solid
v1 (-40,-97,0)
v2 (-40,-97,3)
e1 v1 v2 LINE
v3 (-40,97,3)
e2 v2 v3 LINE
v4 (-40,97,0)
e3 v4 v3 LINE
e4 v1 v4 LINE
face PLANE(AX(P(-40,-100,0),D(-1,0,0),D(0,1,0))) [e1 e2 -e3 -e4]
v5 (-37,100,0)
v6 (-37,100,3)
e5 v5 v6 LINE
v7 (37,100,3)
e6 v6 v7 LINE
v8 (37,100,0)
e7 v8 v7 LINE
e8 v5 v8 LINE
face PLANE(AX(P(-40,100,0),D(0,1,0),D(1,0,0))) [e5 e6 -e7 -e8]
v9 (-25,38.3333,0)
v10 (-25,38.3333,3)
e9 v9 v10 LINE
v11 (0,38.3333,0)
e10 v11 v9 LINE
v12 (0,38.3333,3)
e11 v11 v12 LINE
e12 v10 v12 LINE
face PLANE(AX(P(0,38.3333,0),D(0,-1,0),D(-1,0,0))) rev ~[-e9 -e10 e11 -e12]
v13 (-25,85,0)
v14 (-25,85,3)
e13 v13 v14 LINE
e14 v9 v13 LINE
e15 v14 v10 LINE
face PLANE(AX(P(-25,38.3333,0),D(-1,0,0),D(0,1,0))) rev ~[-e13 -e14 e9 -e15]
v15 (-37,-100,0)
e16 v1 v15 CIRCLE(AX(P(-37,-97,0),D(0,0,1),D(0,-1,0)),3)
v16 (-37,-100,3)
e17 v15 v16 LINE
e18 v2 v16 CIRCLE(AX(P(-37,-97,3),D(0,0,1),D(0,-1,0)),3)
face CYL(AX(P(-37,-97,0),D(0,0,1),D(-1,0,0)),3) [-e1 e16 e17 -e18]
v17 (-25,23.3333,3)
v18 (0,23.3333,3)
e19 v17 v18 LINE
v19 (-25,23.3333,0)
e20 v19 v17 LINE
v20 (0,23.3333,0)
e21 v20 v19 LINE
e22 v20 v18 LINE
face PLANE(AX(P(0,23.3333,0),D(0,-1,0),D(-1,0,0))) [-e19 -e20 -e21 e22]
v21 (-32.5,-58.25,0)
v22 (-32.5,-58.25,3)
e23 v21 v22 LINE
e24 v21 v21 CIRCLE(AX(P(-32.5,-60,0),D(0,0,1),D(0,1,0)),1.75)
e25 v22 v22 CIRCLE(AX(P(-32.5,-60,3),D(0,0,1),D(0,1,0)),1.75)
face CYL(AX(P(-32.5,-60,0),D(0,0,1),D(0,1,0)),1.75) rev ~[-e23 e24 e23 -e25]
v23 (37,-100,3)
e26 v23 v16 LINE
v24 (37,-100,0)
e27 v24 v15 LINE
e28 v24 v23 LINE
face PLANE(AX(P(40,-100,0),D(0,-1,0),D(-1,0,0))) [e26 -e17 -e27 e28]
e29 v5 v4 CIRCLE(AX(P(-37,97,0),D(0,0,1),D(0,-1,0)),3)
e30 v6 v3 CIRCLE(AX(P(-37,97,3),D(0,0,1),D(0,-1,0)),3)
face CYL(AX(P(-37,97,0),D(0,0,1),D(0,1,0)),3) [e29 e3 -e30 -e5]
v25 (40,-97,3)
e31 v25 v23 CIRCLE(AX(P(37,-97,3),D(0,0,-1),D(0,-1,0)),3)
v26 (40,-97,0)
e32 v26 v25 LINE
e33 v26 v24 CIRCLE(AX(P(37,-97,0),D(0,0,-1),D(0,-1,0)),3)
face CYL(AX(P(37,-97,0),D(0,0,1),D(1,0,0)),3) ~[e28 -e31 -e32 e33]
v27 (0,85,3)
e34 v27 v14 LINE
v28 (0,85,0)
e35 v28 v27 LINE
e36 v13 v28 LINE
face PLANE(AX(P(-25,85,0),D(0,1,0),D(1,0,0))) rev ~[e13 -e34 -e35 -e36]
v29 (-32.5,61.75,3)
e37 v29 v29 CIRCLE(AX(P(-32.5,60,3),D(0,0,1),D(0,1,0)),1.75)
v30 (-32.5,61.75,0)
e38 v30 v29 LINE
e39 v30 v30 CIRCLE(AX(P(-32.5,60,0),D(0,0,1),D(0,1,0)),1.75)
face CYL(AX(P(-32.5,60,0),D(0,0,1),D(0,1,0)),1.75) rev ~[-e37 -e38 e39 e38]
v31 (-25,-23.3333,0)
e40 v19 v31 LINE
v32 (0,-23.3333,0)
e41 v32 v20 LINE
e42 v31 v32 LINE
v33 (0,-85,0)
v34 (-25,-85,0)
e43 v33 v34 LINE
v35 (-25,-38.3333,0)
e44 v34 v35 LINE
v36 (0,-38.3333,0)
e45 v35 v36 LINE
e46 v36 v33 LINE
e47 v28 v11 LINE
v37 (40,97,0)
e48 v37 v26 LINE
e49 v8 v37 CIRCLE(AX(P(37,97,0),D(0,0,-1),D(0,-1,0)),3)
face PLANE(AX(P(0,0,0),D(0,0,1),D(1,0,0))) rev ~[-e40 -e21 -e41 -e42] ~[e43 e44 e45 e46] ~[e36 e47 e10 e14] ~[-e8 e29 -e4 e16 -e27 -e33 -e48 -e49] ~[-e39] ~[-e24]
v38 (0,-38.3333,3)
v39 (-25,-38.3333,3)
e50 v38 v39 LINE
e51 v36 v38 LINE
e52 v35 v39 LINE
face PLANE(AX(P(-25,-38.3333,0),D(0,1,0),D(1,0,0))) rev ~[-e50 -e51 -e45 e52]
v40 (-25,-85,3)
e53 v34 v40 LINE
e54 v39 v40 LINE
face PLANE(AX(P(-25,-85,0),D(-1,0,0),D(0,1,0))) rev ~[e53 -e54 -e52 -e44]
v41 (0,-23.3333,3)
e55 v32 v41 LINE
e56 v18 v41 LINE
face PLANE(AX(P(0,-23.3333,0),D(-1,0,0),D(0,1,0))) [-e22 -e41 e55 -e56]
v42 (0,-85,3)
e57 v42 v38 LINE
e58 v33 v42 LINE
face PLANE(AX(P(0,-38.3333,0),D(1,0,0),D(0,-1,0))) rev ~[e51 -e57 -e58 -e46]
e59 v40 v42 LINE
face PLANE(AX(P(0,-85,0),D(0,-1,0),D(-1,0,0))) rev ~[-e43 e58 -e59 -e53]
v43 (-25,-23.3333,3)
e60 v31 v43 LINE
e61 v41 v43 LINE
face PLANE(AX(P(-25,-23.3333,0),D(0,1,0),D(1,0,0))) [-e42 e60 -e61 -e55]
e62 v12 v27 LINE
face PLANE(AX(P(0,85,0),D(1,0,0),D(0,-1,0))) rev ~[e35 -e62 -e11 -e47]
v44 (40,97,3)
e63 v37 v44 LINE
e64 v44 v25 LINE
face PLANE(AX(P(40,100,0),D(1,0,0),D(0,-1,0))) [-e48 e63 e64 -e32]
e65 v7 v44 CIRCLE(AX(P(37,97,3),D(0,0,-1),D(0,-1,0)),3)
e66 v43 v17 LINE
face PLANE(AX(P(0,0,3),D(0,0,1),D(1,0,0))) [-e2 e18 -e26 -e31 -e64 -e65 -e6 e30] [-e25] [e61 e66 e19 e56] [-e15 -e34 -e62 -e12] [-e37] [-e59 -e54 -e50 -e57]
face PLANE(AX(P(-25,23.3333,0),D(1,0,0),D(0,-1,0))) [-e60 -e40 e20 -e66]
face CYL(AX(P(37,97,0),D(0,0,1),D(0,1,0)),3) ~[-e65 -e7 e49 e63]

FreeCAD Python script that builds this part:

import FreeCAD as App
import Part
import Sketcher

V = App.Vector


def edges_at(feature, points):
    """Names of the edges that pass closest to the given points."""
    edges = feature.Shape.Edges
    near = lambda p: min(range(len(edges)), key=lambda i: edges[i].distToShape(Part.Vertex(*p))[0])
    return sorted({f"Edge{near(p) + 1}" for p in points})


def add_polygon(sketch, points):
    """Adds a closed chain of lines whose ends are joined by coincident constraints."""
    first, n = sketch.GeometryCount, len(points)
    for a, b in zip(points, points[1:] + points[:1]):
        sketch.addGeometry(Part.LineSegment(App.Vector(*a, 0), App.Vector(*b, 0)), False)
    for i in range(n):
        sketch.addConstraint(Sketcher.Constraint("Coincident", first + i, 2, first + (i + 1) % n, 1))

doc = App.newDocument("Part")
body = doc.addObject("PartDesign::Body", "Body")

# Sketch on XY plane
sketch1 = body.newObject("Sketcher::SketchObject", "Sketch")
sketch1.AttachmentSupport = (doc.getObject("XY_Plane"), [""])
sketch1.MapMode = "FlatFace"
add_polygon(sketch1, [(40, 100), (-40, 100), (-40, -100), (40, -100)])  # lines 0-3
sketch1.addConstraint([
    Sketcher.Constraint("Horizontal", 0),
    Sketcher.Constraint("Vertical", 1),
    Sketcher.Constraint("Horizontal", 2),
    Sketcher.Constraint("Vertical", 3),
    Sketcher.Constraint("Symmetric", 0, 2, 2, 2, -1, 1),
    Sketcher.Constraint("DistanceX", 0, 2, 0, 1, 80.0),
    Sketcher.Constraint("DistanceY", 1, 2, 1, 1, 200.0),
])
pad1 = body.newObject("PartDesign::Pad", "Pad")
pad1.Profile = sketch1
pad1.Length = 3

# Sketch on XY plane
sketch2 = body.newObject("Sketcher::SketchObject", "Sketch001")
sketch2.AttachmentSupport = (doc.getObject("XY_Plane"), [""])
sketch2.MapMode = "FlatFace"
sketch2.addGeometry([
    Part.Circle(V(-32.5, -60, 0), V(0, 0, 1), 1.75),
    Part.Circle(V(-32.5, 60, 0), V(0, 0, 1), 1.75),
], False)
sketch2.addConstraint([
    Sketcher.Constraint("Equal", 0, 1),
    Sketcher.Constraint("Symmetric", 0, 3, 1, 3, -1),
    Sketcher.Constraint("Diameter", 0, 3.5),
    Sketcher.Constraint("DistanceY", 0, 3, -1, 1, 60.0),
    Sketcher.Constraint("DistanceX", 0, 3, -1, 1, 32.5),
])
doc.recompute()
hole = body.newObject("PartDesign::Hole", "Hole")
hole.Profile = sketch2
hole.ThreadType = "None"
hole.Diameter = 3.5
hole.DepthType = "ThroughAll"
hole.Reversed = True
doc.recompute()

fillet = body.newObject("PartDesign::Fillet", "Fillet")
fillet.Base = (hole, edges_at(hole, [
    (-40, -100, 1.5),
    (40, -100, 1.5),
    (40, 100, 1.5),
    (-40, 100, 1.5),
]))
fillet.Radius = 3

# Sketch on XY plane
sketch3 = body.newObject("Sketcher::SketchObject", "Sketch002")
sketch3.AttachmentSupport = (doc.getObject("XY_Plane"), [""])
sketch3.MapMode = "FlatFace"
add_polygon(sketch3, [(0, -38.3333), (0, -85), (-25, -85), (-25, -38.3333)])  # lines 0-3
add_polygon(sketch3, [(-25, 38.3333), (-25, 85), (0, 85), (0, 38.3333)])  # lines 4-7
add_polygon(sketch3, [(0, -23.3333), (-25, -23.3333), (-25, 23.3333), (0, 23.3333)])  # lines 8-11
sketch3.addConstraint([
    Sketcher.Constraint("Vertical", 0),
    Sketcher.Constraint("Horizontal", 1),
    Sketcher.Constraint("Vertical", 2),
    Sketcher.Constraint("Horizontal", 3),
    Sketcher.Constraint("Vertical", 4),
    Sketcher.Constraint("Horizontal", 5),
    Sketcher.Constraint("Vertical", 6),
    Sketcher.Constraint("Horizontal", 7),
    Sketcher.Constraint("Horizontal", 8),
    Sketcher.Constraint("Vertical", 9),
    Sketcher.Constraint("Horizontal", 10),
    Sketcher.Constraint("Vertical", 11),
    Sketcher.Constraint("Symmetric", 0, 2, 5, 2, -1, 1),
    Sketcher.Constraint("Symmetric", 10, 2, 11, 2, -1, 1),
    Sketcher.Constraint("Symmetric", 3, 2, 6, 2, -1),
    Sketcher.Constraint("Vertical", 2, 2, 4, 2),
    Sketcher.Constraint("Vertical", 7, 2, 8, 2),
    Sketcher.Constraint("Equal", 6, 9),
    Sketcher.Constraint("DistanceX", 1, 2, 1, 1, 25.0),
    Sketcher.Constraint("DistanceY", 2, 2, 8, 2, 15.0),
    Sketcher.Constraint("DistanceY", 0, 2, -1, 1, 85.0),
])
pocket1 = body.newObject("PartDesign::Pocket", "Pocket")
pocket1.Profile = sketch3
pocket1.Type = "ThroughAll"
pocket1.Reversed = True

doc.recompute()
